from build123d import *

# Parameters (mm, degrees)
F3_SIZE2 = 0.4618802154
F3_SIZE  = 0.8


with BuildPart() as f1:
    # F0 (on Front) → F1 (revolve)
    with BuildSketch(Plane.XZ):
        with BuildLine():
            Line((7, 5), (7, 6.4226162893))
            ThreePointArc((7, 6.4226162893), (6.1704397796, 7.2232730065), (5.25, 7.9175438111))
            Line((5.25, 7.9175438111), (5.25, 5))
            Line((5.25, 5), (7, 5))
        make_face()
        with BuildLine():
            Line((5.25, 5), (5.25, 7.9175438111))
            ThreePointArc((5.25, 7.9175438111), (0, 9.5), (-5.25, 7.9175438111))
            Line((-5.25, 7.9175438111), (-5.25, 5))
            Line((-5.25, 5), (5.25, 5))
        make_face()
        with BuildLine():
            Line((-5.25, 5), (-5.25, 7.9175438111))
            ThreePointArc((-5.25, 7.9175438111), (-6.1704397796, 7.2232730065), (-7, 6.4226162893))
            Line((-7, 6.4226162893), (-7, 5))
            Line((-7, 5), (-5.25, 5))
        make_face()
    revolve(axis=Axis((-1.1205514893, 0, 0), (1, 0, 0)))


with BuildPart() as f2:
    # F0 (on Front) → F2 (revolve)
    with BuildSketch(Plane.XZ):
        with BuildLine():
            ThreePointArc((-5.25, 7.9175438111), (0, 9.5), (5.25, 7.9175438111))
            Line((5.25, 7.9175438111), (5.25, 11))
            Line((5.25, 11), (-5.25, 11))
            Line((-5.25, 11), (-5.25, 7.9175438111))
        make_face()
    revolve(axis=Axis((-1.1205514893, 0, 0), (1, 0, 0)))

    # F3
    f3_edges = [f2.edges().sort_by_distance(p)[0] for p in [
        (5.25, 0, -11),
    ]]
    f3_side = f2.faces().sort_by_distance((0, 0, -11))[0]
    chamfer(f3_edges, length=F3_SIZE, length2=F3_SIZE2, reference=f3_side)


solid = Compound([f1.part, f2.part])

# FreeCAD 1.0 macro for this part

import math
import FreeCAD as App
import Part
import Sketcher


def edges_at(feature, points):
    """Names of the edges that pass closest to the given points."""
    edges = feature.Shape.Edges
    near = lambda p: min(range(len(edges)), key=lambda i: edges[i].distToShape(Part.Vertex(*p))[0])
    return sorted({f"Edge{near(p) + 1}" for p in points})

doc = App.newDocument("Part")
params = doc.addObject("Spreadsheet::Sheet", "Params")
for row, (alias, value) in enumerate([
    ("sketch1_radius", "9.5 mm"),
    ("sketch1_width", "14 mm"),
    ("revolution_angle", "360 deg"),
    ("sketch2_radius", "9.5 mm"),
    ("sketch2_width", "10.5 mm"),
    ("revolution2_angle", "360 deg"),
    ("chamfer_size", "0.8 mm"),
    ("chamfer_size2", "0.46188 mm"),
], start=1):
    params.set(f"A{row}", alias)
    params.set(f"B{row}", "=" + value)
    params.setAlias(f"B{row}", alias)

body = doc.addObject("PartDesign::Body", "Body")

# Sketch on XZ plane
sketch1 = body.newObject("Sketcher::SketchObject", "Sketch")
sketch1.AttachmentSupport = (doc.getObject("XZ_Plane"), [""])
sketch1.MapMode = "FlatFace"
sketch1.addGeometry([
    Part.LineSegment(App.Vector(7, 5, 0), App.Vector(7, 6.4, 0)),  # 0
    Part.ArcOfCircle(Part.Circle(App.Vector(0, 0, 0), App.Vector(0, 0, 1), 9.5), math.radians(42.54), math.radians(56.45)),  # 1
    Part.ArcOfCircle(Part.Circle(App.Vector(0, 0, 0), App.Vector(0, 0, 1), 9.5), math.radians(56), math.radians(124)),  # 2
    Part.ArcOfCircle(Part.Circle(App.Vector(0, 0, 0), App.Vector(0, 0, 1), 9.5), math.radians(123.55), math.radians(137.46)),  # 3
    Part.LineSegment(App.Vector(-7, 6.4, 0), App.Vector(-7, 5, 0)),  # 4
    Part.LineSegment(App.Vector(-7, 5, 0), App.Vector(7, 5, 0)),  # 5
], False)
sketch1.addConstraint([
    Sketcher.Constraint("Coincident", 0, 2, 1, 1),
    Sketcher.Constraint("Tangent", 1, 2, 2, 1),
    Sketcher.Constraint("Tangent", 2, 2, 3, 1),
    Sketcher.Constraint("Coincident", 3, 2, 4, 1),
    Sketcher.Constraint("Coincident", 4, 2, 5, 1),
    Sketcher.Constraint("Coincident", 5, 2, 0, 1),
    Sketcher.Constraint("Vertical", 0),
    Sketcher.Constraint("Vertical", 4),
    Sketcher.Constraint("Horizontal", 5),
    Sketcher.Constraint("Coincident", 1, 3, -1, 1),
    Sketcher.Constraint("Coincident", 3, 3, -1, 1),
    Sketcher.Constraint("Horizontal", 1, 2, 2, 2),
    Sketcher.Constraint("Horizontal", 0, 2, 3, 2),
    Sketcher.Constraint("Radius", 1, 9.5),
    Sketcher.Constraint("DistanceX", 5, 1, 5, 2, 14.0),
    Sketcher.Constraint("DistanceY", -1, 1, 4, 2, 5.0),
    Sketcher.Constraint("DistanceX", 2, 2, 1, 2, 10.5),
])
sketch1.setExpression("Constraints[13]", "Params.sketch1_radius")
sketch1.setExpression("Constraints[14]", "Params.sketch1_width")
revolution = body.newObject("PartDesign::Revolution", "Revolution")
revolution.Profile = sketch1
revolution.ReferenceAxis = (sketch1, ["H_Axis"])
revolution.setExpression("Angle", "Params.revolution_angle")
body2 = doc.addObject("PartDesign::Body", "Body001")

# Sketch on XZ plane
sketch2 = body2.newObject("Sketcher::SketchObject", "Sketch001")
sketch2.AttachmentSupport = (doc.getObject("XZ_Plane001"), [""])
sketch2.MapMode = "FlatFace"
sketch2.addGeometry([
    Part.ArcOfCircle(Part.Circle(App.Vector(0, 0, 0), App.Vector(0, 0, 1), 9.5), math.radians(56), math.radians(124)),
    Part.LineSegment(App.Vector(5.2, 7.9, 0), App.Vector(5.2, 11, 0)),
    Part.LineSegment(App.Vector(5.2, 11, 0), App.Vector(-5.2, 11, 0)),
    Part.LineSegment(App.Vector(-5.2, 11, 0), App.Vector(-5.2, 7.9, 0)),
], False)
sketch2.addConstraint([
    Sketcher.Constraint("Coincident", 0, 1, 1, 1),
    Sketcher.Constraint("Coincident", 1, 2, 2, 1),
    Sketcher.Constraint("Coincident", 2, 2, 3, 1),
    Sketcher.Constraint("Coincident", 3, 2, 0, 2),
    Sketcher.Constraint("Vertical", 1),
    Sketcher.Constraint("Horizontal", 2),
    Sketcher.Constraint("Vertical", 3),
    Sketcher.Constraint("Coincident", 0, 3, -1, 1),
    Sketcher.Constraint("Horizontal", 0, 1, 3, 2),
    Sketcher.Constraint("Radius", 0, 9.5),
    Sketcher.Constraint("DistanceX", 2, 2, 2, 1, 10.5),
    Sketcher.Constraint("DistanceY", -1, 1, 1, 2, 11.0),
])
sketch2.setExpression("Constraints[9]", "Params.sketch2_radius")
sketch2.setExpression("Constraints[10]", "Params.sketch2_width")
revolution2 = body2.newObject("PartDesign::Revolution", "Revolution001")
revolution2.Profile = sketch2
revolution2.ReferenceAxis = (sketch2, ["H_Axis"])
revolution2.setExpression("Angle", "Params.revolution2_angle")
doc.recompute()

chamfer = body2.newObject("PartDesign::Chamfer", "Chamfer")
chamfer.Base = (revolution2, edges_at(revolution2, [(5.25, 0, -11)]))
chamfer.ChamferType = "Two distances"
chamfer.setExpression("Size", "Params.chamfer_size")
chamfer.setExpression("Size2", "Params.chamfer_size2")

doc.recompute()
